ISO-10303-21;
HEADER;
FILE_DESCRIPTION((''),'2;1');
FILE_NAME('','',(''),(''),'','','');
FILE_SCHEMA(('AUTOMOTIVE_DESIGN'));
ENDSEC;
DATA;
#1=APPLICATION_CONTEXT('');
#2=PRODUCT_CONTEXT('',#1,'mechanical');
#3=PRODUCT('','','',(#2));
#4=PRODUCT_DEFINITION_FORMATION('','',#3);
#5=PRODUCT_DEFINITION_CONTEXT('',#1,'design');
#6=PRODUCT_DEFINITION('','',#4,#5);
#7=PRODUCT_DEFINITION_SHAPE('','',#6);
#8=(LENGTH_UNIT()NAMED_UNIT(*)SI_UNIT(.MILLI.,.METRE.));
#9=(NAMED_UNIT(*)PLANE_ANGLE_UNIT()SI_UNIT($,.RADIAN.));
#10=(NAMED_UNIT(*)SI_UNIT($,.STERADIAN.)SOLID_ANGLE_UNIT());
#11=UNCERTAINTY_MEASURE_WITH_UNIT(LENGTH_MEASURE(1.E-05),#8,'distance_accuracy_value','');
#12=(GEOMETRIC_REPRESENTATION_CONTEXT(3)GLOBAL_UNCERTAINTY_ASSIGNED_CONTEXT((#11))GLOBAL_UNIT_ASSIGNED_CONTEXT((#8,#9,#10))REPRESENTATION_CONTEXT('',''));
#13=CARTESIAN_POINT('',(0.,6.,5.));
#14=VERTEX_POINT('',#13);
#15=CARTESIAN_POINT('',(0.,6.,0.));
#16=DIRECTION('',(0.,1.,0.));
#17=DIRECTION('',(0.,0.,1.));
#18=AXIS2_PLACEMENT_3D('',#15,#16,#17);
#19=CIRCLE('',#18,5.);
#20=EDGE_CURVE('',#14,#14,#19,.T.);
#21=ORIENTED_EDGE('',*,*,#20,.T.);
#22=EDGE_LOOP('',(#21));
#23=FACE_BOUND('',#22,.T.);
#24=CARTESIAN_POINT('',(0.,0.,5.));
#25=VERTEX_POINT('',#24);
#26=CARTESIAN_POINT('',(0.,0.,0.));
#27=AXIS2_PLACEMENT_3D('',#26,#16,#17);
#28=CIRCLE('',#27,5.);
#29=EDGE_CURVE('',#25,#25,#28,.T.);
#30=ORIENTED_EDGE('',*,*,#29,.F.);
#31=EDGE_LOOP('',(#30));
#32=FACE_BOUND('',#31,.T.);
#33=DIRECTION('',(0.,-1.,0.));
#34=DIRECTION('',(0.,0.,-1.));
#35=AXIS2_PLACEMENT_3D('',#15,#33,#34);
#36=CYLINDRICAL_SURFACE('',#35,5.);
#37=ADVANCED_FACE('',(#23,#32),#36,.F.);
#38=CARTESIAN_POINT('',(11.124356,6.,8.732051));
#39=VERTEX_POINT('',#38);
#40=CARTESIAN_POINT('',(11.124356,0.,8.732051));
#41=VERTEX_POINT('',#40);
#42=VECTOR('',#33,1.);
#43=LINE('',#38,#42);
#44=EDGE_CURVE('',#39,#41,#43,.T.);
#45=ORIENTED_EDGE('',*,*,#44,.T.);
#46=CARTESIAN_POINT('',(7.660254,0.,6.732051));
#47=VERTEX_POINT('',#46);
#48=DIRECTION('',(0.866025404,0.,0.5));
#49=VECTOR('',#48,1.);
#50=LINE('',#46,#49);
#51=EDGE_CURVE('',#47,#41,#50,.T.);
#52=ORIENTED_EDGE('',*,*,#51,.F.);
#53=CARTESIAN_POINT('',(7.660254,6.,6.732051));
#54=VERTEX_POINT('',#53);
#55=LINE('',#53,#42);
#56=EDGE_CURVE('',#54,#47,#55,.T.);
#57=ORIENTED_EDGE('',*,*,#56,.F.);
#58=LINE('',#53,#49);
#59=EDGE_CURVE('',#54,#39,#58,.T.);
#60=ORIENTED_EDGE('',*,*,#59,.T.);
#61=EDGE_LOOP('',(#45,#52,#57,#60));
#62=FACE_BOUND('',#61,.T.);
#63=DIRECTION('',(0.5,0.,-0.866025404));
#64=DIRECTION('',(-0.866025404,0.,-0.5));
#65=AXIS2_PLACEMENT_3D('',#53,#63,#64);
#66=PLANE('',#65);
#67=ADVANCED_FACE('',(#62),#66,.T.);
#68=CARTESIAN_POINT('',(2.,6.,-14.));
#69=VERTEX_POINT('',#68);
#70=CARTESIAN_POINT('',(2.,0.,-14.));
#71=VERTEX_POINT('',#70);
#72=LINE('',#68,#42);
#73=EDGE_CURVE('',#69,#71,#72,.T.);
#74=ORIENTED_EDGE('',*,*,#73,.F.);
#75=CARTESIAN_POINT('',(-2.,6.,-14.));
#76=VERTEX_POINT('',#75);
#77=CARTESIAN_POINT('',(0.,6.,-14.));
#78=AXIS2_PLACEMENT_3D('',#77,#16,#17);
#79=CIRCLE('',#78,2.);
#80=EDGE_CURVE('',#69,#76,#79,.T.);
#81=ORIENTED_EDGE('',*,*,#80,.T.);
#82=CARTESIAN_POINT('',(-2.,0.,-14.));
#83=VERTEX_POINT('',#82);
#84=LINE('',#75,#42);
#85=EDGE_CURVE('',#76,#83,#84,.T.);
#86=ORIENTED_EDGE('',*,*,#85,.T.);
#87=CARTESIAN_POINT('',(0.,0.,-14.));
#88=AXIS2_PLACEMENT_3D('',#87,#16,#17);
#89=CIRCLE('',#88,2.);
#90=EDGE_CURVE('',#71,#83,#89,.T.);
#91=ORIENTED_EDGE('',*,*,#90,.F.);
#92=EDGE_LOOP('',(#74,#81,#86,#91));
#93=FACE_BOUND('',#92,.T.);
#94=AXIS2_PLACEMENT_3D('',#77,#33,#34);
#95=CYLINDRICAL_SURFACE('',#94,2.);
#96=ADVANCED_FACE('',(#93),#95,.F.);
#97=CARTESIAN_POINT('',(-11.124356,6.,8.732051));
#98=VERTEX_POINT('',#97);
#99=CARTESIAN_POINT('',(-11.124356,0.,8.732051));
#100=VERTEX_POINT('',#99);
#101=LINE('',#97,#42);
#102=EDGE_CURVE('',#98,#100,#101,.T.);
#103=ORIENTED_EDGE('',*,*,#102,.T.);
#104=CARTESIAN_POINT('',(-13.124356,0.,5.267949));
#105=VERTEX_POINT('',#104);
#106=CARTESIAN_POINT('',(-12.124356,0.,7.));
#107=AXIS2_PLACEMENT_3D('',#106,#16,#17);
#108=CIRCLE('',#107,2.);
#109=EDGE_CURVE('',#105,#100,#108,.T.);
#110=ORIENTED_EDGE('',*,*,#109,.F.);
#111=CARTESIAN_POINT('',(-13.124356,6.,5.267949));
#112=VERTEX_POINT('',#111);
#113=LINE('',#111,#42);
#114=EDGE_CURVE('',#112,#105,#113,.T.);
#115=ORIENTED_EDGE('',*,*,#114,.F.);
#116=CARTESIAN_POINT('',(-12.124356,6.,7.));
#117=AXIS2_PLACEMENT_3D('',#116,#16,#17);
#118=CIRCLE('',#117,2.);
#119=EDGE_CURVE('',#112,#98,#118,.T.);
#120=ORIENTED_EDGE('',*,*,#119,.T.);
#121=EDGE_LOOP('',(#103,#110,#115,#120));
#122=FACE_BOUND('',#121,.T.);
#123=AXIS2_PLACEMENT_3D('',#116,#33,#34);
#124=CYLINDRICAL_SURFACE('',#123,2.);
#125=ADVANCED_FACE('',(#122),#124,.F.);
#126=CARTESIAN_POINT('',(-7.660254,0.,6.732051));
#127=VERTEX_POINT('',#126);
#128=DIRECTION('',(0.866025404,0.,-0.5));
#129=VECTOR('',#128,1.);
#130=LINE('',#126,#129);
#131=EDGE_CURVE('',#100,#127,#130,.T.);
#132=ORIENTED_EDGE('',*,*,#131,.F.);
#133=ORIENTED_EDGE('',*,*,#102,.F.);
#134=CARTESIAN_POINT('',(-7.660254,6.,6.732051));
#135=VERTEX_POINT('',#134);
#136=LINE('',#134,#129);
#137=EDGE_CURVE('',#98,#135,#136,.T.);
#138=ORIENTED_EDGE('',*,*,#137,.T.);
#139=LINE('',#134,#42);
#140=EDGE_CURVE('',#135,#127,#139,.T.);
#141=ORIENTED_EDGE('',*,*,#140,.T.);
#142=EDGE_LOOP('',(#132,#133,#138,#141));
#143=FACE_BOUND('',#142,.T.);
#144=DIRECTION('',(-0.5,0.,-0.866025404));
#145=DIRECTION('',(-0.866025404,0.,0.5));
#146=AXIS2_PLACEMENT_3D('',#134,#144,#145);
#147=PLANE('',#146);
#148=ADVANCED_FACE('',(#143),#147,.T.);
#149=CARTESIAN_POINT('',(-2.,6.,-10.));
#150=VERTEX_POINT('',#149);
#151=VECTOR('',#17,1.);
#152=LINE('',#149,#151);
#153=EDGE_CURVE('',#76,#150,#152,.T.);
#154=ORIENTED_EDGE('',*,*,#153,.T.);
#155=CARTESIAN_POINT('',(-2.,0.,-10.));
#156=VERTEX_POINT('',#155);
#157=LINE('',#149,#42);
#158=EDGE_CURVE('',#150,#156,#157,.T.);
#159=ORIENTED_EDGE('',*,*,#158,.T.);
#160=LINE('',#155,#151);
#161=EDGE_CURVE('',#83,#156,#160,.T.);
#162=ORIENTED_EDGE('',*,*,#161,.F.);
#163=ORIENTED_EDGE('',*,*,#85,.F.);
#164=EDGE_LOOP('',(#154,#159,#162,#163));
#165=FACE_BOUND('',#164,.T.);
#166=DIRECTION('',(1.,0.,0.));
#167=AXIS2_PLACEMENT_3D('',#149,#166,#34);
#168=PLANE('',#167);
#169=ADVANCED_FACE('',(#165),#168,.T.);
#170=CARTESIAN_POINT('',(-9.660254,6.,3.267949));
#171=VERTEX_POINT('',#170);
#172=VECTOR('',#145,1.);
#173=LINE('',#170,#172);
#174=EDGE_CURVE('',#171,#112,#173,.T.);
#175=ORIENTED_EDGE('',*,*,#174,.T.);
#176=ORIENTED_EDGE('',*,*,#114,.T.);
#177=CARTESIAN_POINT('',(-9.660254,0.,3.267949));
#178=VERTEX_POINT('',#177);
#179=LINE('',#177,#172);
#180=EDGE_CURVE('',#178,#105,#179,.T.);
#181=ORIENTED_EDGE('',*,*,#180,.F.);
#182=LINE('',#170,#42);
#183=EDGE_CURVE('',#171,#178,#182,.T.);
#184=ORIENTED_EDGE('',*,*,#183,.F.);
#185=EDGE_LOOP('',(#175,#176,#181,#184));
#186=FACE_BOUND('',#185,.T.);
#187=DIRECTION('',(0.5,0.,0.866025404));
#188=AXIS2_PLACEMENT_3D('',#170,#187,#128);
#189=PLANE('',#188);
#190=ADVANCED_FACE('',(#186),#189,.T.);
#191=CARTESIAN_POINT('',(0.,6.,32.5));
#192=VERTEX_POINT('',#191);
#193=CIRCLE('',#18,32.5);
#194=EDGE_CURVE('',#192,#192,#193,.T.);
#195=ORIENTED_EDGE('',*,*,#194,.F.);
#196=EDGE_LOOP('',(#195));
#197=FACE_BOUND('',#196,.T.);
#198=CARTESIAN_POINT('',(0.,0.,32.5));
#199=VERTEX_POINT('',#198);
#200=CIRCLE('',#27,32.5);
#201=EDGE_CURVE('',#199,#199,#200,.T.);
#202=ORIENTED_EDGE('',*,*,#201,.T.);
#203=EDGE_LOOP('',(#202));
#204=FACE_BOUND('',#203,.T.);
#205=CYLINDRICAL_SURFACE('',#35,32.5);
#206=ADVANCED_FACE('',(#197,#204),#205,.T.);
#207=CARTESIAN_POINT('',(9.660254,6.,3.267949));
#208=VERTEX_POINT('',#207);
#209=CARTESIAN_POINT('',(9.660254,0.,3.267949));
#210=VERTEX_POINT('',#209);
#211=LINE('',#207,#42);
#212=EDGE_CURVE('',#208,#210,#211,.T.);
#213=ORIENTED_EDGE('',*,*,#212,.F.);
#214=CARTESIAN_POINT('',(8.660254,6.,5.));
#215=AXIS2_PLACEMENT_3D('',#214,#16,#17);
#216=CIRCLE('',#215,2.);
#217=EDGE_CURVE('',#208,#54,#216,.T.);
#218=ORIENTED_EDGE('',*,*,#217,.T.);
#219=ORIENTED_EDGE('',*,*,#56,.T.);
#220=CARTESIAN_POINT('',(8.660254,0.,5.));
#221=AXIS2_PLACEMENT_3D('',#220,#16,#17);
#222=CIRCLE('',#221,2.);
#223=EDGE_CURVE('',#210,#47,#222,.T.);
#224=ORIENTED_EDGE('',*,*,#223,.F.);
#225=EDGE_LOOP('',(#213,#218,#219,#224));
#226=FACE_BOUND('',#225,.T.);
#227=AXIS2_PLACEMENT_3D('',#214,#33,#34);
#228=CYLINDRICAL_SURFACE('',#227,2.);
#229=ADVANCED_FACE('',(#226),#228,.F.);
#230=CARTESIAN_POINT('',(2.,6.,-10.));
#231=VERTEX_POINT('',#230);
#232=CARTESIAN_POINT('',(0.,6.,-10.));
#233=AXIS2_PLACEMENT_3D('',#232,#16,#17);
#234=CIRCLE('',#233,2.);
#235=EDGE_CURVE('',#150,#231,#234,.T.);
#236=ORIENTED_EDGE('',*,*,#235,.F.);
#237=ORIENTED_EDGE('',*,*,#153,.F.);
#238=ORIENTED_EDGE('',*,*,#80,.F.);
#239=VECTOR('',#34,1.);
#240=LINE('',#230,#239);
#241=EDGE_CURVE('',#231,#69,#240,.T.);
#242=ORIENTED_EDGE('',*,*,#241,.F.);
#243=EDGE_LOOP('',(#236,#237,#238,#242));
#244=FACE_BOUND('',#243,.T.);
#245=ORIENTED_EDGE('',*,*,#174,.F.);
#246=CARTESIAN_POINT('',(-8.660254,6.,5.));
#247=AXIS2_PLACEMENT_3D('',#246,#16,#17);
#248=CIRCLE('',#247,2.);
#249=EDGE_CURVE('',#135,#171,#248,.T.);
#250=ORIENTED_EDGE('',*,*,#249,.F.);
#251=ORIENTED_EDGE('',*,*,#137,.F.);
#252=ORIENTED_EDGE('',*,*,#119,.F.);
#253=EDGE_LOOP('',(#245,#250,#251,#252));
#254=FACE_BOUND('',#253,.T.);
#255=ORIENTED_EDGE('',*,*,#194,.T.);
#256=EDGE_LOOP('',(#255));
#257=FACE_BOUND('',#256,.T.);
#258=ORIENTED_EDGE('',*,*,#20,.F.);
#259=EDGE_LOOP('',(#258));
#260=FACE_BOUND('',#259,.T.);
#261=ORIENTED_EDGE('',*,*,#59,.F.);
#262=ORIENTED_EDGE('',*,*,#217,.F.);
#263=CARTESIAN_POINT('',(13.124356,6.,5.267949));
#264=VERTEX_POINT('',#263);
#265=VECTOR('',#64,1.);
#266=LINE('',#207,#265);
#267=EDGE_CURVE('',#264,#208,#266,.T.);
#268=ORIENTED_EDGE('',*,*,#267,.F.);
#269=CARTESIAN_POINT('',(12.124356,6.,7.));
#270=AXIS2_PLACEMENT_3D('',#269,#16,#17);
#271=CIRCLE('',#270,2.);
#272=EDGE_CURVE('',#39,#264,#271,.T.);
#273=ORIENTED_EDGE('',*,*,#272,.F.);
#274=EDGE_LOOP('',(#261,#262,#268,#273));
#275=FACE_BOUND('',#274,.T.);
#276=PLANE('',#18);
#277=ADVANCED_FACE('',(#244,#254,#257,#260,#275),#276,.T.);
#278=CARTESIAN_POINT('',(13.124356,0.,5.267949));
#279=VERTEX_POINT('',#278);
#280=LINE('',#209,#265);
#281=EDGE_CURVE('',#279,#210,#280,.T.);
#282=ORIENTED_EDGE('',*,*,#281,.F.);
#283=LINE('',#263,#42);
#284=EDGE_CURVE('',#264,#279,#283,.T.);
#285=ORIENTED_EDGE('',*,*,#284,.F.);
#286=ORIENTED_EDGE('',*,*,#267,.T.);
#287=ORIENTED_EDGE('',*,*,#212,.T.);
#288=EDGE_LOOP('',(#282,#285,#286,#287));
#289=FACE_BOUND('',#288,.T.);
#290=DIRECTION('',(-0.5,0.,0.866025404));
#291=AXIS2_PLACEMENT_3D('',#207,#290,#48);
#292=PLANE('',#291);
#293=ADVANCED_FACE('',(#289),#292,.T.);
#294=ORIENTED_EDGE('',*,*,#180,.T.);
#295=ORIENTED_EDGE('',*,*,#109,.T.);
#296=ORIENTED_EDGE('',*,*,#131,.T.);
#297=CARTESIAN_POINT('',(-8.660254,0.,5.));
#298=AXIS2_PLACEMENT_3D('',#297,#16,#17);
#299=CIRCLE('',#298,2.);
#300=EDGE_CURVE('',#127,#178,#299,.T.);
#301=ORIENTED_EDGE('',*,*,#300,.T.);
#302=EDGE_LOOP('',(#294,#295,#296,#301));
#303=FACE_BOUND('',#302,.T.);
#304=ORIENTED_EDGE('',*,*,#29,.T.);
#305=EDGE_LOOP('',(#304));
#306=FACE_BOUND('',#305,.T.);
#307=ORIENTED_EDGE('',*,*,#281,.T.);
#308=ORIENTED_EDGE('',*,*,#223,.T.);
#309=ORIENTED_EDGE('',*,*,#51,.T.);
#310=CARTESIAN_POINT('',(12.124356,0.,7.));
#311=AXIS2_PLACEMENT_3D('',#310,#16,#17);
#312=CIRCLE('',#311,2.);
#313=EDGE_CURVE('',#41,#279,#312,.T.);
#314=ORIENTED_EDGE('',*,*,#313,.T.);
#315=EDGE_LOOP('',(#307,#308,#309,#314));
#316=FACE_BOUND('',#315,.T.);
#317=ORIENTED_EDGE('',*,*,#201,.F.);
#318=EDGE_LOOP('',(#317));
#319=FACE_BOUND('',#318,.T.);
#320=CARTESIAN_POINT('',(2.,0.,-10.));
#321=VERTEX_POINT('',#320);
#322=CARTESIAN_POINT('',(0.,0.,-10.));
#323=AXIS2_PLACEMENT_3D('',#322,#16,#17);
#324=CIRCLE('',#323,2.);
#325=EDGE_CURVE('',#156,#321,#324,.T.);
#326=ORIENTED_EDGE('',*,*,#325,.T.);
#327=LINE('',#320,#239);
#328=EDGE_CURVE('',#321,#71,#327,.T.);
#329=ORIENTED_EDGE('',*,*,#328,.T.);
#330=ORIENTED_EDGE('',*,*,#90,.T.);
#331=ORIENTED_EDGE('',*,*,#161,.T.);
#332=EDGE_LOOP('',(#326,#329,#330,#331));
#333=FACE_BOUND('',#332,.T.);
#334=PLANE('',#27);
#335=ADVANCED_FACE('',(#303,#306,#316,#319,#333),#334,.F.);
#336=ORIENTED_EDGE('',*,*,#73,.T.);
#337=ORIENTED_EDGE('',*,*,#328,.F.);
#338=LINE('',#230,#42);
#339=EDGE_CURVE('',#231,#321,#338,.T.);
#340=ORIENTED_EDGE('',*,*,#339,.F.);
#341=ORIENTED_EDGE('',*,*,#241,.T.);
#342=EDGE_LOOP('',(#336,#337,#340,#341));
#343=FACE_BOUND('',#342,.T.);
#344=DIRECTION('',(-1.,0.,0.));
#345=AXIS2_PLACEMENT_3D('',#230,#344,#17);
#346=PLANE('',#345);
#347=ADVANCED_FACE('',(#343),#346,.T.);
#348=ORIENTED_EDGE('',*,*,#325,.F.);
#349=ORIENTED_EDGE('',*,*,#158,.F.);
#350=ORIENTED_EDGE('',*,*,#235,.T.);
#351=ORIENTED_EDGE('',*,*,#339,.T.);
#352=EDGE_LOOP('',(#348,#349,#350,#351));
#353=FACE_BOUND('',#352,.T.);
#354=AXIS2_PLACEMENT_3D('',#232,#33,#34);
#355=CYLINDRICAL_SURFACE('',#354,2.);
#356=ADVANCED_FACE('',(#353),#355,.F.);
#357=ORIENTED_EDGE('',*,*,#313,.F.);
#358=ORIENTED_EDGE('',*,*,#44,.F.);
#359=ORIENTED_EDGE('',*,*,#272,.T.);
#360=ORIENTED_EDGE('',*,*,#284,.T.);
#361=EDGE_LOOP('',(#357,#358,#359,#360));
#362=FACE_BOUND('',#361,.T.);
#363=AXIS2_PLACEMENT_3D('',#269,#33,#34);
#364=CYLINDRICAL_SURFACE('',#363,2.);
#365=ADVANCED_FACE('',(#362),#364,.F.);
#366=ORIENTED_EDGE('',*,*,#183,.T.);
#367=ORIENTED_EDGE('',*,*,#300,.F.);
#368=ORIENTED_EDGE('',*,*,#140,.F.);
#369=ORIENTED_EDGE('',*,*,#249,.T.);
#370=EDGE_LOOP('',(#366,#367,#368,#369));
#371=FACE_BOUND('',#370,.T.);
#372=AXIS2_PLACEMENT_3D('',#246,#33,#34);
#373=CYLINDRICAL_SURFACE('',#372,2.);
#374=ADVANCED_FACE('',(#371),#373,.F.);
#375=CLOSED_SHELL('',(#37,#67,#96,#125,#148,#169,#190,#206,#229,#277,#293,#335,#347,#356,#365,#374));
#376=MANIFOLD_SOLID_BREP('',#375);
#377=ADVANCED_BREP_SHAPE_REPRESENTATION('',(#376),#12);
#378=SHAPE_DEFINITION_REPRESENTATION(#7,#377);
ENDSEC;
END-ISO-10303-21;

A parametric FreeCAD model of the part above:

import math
import FreeCAD as App
import Part
import Sketcher
from FreeCAD import Vector
Q = App.Units.Quantity

doc = App.newDocument("Part")
body = doc.addObject("PartDesign::Body", "Body")

sketch1 = body.newObject("Sketcher::SketchObject", "Sketch")
sketch1.AttachmentSupport = (doc.getObject("XZ_Plane"), [""])
sketch1.MapMode = "FlatFace"
sketch1.addGeometry([
    Part.Circle(Vector(0, 0, 0), Vector(0, 0, 1), 32.5),
    Part.ArcOfCircle(Part.Circle(Vector(0, -10, 0), Vector(0, 0, 1), 2), math.radians(0), math.radians(180)),
    Part.LineSegment(Vector(-2, -10, 0), Vector(-2, -14, 0)),
    Part.ArcOfCircle(Part.Circle(Vector(0, -14, 0), Vector(0, 0, 1), 2), math.radians(180), math.radians(360)),
    Part.LineSegment(Vector(2, -14, 0), Vector(2, -10, 0)),
    Part.ArcOfCircle(Part.Circle(Vector(-8.7, 5, 0), Vector(0, 0, 1), 2), math.radians(-120), math.radians(60)),
    Part.LineSegment(Vector(-7.7, 6.7, 0), Vector(-11.1, 8.7, 0)),
    Part.ArcOfCircle(Part.Circle(Vector(-12.1, 7, 0), Vector(0, 0, 1), 2), math.radians(60), math.radians(240)),
    Part.LineSegment(Vector(-13.1, 5.3, 0), Vector(-9.7, 3.3, 0)),
    Part.Circle(Vector(0, 0, 0), Vector(0, 0, 1), 5),
    Part.ArcOfCircle(Part.Circle(Vector(8.7, 5, 0), Vector(0, 0, 1), 2), math.radians(120), math.radians(300)),
    Part.LineSegment(Vector(9.7, 3.3, 0), Vector(13.1, 5.3, 0)),
    Part.ArcOfCircle(Part.Circle(Vector(12.1, 7, 0), Vector(0, 0, 1), 2), math.radians(-60), math.radians(120)),
    Part.LineSegment(Vector(11.1, 8.7, 0), Vector(7.7, 6.7, 0)),
], False)
sketch1.addConstraint([
    Sketcher.Constraint("Tangent", 1, 2, 2, 1),
    Sketcher.Constraint("Tangent", 2, 2, 3, 1),
    Sketcher.Constraint("Tangent", 3, 2, 4, 1),
    Sketcher.Constraint("Tangent", 4, 2, 1, 1),
    Sketcher.Constraint("Tangent", 5, 2, 6, 1),
    Sketcher.Constraint("Tangent", 6, 2, 7, 1),
    Sketcher.Constraint("Tangent", 7, 2, 8, 1),
    Sketcher.Constraint("Tangent", 8, 2, 5, 1),
    Sketcher.Constraint("Tangent", 10, 2, 11, 1),
    Sketcher.Constraint("Tangent", 11, 2, 12, 1),
    Sketcher.Constraint("Tangent", 12, 2, 13, 1),
    Sketcher.Constraint("Tangent", 13, 2, 10, 1),
    Sketcher.Constraint("Vertical", 2),
    Sketcher.Constraint("Vertical", 4),
    Sketcher.Constraint("Coincident", 0, 3, -1, 1),
    Sketcher.Constraint("Coincident", 9, 3, -1, 1),
    Sketcher.Constraint("Equal", 3, 5),
    Sketcher.Constraint("Equal", 5, 7),
    Sketcher.Constraint("Equal", 7, 10),
    Sketcher.Constraint("Equal", 10, 12),
    Sketcher.Constraint("Symmetric", 5, 3, 10, 3, -2),
    Sketcher.Constraint("Symmetric", 7, 3, 12, 3, -2),
    Sketcher.Constraint("PointOnObject", 1, 3, -2),
    Sketcher.Constraint("Diameter", 0, Q("65 mm")),
    Sketcher.Constraint("Diameter", 9, Q("10 mm")),
    Sketcher.Constraint("Radius", 1, Q("2 mm")),
    Sketcher.Constraint("DistanceY", 2, 2, 2, 1, Q("4 mm")),
    Sketcher.Constraint("Angle", 6, Q("150 deg")),
    Sketcher.Constraint("Distance", 6, Q("4 mm")),
    Sketcher.Constraint("DistanceY", 1, 3, -1, 1, Q("10 mm")),
    Sketcher.Constraint("DistanceY", -1, 1, 5, 3, Q("5 mm")),
    Sketcher.Constraint("DistanceX", 5, 3, 10, 3, Q("17.320508 mm")),
])
pad1 = body.newObject("PartDesign::Pad", "Pad")
pad1.Profile = sketch1
pad1.Length = 6
pad1.Reversed = True

doc.recompute()
